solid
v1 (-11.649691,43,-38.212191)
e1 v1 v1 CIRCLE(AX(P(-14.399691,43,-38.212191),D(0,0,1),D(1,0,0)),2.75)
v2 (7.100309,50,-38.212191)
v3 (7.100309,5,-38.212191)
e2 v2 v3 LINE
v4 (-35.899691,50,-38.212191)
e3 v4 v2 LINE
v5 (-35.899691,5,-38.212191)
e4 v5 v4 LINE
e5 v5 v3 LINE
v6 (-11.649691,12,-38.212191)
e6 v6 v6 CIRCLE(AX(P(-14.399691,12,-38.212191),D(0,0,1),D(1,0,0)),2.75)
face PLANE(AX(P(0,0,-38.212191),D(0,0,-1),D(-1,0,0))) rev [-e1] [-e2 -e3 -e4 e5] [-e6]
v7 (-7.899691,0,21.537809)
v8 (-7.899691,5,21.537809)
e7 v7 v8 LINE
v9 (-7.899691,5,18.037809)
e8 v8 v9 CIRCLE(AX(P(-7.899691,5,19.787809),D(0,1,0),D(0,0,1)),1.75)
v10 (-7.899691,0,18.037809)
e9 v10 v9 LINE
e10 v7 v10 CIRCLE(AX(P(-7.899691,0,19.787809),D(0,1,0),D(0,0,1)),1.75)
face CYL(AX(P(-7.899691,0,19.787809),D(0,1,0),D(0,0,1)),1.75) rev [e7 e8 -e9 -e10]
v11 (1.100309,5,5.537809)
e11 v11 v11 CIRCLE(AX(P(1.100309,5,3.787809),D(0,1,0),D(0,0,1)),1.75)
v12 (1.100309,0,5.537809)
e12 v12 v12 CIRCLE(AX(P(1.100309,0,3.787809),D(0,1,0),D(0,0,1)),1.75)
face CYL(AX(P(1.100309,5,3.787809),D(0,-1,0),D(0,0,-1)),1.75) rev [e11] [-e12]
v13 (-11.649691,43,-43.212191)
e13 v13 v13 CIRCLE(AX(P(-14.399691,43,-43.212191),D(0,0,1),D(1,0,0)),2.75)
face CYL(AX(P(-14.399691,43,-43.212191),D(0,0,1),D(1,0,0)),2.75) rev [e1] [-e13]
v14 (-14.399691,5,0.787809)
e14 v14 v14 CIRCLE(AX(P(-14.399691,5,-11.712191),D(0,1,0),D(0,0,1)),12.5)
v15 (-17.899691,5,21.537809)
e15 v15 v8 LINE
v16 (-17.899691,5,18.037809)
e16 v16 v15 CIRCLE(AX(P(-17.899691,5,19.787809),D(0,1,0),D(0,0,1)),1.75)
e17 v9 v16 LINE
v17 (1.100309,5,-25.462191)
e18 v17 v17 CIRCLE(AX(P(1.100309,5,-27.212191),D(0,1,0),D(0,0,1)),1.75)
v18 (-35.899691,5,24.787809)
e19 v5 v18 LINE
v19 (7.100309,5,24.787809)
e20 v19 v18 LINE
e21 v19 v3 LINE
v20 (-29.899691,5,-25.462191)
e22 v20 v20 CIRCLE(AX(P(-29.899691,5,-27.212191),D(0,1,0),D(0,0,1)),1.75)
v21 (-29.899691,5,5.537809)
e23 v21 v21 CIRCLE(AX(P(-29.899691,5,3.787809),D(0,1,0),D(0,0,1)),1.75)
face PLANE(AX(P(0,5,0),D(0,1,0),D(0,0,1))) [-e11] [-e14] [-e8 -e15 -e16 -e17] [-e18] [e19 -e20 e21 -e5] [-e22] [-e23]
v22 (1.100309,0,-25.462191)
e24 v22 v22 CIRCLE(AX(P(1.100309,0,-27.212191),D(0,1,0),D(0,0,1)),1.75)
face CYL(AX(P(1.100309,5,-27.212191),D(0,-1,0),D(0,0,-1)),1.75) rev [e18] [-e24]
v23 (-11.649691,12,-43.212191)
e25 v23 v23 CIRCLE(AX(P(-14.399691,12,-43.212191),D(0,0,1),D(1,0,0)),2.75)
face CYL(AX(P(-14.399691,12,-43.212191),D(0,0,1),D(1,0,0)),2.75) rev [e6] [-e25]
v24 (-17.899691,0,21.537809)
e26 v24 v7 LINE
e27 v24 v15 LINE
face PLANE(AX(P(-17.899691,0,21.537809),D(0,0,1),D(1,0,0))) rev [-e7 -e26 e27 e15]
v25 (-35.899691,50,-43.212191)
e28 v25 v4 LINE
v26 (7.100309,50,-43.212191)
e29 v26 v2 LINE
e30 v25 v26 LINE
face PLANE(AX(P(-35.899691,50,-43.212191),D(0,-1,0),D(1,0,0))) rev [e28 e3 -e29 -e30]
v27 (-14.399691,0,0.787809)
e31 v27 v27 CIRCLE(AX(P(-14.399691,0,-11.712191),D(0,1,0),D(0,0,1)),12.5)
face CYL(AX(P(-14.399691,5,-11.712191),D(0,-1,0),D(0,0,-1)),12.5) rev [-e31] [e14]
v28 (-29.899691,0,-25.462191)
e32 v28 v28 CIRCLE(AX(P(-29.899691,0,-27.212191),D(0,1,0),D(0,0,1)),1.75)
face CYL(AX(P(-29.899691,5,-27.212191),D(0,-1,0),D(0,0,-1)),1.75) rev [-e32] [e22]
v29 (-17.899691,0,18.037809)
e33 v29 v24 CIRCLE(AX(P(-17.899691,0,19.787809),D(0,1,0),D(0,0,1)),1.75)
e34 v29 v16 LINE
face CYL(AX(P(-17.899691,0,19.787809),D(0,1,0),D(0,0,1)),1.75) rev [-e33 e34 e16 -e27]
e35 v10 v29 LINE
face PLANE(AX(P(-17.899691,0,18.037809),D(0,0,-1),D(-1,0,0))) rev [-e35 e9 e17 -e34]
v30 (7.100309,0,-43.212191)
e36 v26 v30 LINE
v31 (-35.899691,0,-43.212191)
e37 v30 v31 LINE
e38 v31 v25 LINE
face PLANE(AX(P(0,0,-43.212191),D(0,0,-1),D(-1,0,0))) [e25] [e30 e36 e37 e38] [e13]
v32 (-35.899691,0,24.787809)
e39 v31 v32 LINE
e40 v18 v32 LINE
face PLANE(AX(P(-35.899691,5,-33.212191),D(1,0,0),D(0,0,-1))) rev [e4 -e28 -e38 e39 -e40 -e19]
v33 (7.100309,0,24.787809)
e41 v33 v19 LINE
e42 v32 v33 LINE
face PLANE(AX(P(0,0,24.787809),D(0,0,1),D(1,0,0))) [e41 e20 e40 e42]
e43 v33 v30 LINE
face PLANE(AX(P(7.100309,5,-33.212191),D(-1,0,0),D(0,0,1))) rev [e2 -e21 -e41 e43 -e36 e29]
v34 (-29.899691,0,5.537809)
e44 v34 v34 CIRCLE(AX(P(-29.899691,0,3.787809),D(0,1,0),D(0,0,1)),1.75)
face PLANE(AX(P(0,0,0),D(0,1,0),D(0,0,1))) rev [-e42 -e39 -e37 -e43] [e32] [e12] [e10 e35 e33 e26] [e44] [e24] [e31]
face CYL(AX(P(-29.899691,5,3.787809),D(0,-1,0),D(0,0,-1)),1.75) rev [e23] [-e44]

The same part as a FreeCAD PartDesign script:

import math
import FreeCAD as App
import Part
import Sketcher

V = App.Vector
Q = App.Units.Quantity

doc = App.newDocument("Part")
body = doc.addObject("PartDesign::Body", "Body")

sketch1 = body.newObject("Sketcher::SketchObject", "Sketch")
sketch1.AttachmentSupport = (doc.getObject("XZ_Plane"), [""])
sketch1.MapMode = "FlatFace"
sketch1.addGeometry([
    Part.LineSegment(V(-35.899691, -33.212191, 0), V(-35.899691, 9.787809, 0)),
    Part.LineSegment(V(-35.899691, 9.787809, 0), V(7.100309, 9.787809, 0)),
    Part.LineSegment(V(7.100309, 9.787809, 0), V(7.100309, -33.212191, 0)),
    Part.LineSegment(V(7.100309, -33.212191, 0), V(-35.899691, -33.212191, 0)),
    Part.Circle(V(-29.899691, 3.787809, 0), V(0, 0, 1), 1.75),
    Part.Circle(V(1.100309, 3.787809, 0), V(0, 0, 1), 1.75),
    Part.Circle(V(-29.899691, -27.212191, 0), V(0, 0, 1), 1.75),
    Part.Circle(V(-14.399691, -11.712191, 0), V(0, 0, 1), 12.5),
    Part.Circle(V(1.100309, -27.212191, 0), V(0, 0, 1), 1.75),
], False)
sketch1.addConstraint([
    Sketcher.Constraint("Coincident", 0, 2, 1, 1),
    Sketcher.Constraint("Coincident", 1, 2, 2, 1),
    Sketcher.Constraint("Coincident", 2, 2, 3, 1),
    Sketcher.Constraint("Coincident", 3, 2, 0, 1),
    Sketcher.Constraint("Vertical", 0),
    Sketcher.Constraint("Horizontal", 1),
    Sketcher.Constraint("Vertical", 2),
    Sketcher.Constraint("Horizontal", 3),
    Sketcher.Constraint("Equal", 4, 5),
    Sketcher.Constraint("Equal", 5, 6),
    Sketcher.Constraint("Equal", 6, 8),
    Sketcher.Constraint("Horizontal", 4, 3, 5, 3),
    Sketcher.Constraint("Horizontal", 6, 3, 8, 3),
    Sketcher.Constraint("Vertical", 4, 3, 6, 3),
    Sketcher.Constraint("Vertical", 5, 3, 8, 3),
    Sketcher.Constraint("Equal", 3, 0),
    Sketcher.Constraint("Diameter", 7, Q("25 mm")),
    Sketcher.Constraint("Diameter", 4, Q("3.5 mm")),
    Sketcher.Constraint("DistanceX", 1, 1, 1, 2, Q("43 mm")),
    Sketcher.Constraint("DistanceX", 4, 3, 5, 3, Q("31 mm")),
    Sketcher.Constraint("DistanceY", 6, 3, 4, 3, Q("31 mm")),
    Sketcher.Constraint("DistanceX", 0, 2, 4, 3, Q("6 mm")),
    Sketcher.Constraint("DistanceY", 4, 3, 0, 2, Q("6 mm")),
    Sketcher.Constraint("DistanceX", 6, 3, 7, 3, Q("15.5 mm")),
    Sketcher.Constraint("DistanceY", 6, 3, 7, 3, Q("15.5 mm")),
    Sketcher.Constraint("DistanceX", 4, 3, -1, 1, Q("29.899691 mm")),
    Sketcher.Constraint("DistanceY", -1, 1, 4, 3, Q("3.787809 mm")),
])
pad1 = body.newObject("PartDesign::Pad", "Pad")
pad1.Profile = sketch1
pad1.Length = 5
pad1.Reversed = True

sketch2 = body.newObject("Sketcher::SketchObject", "Sketch001")
sketch2.AttachmentSupport = (doc.getObject("XY_Plane"), [""])
sketch2.MapMode = "FlatFace"
sketch2.AttachmentOffset = App.Placement(V(0, 0, -33.212191), App.Rotation())
sketch2.addGeometry([
    Part.LineSegment(V(7.100309, 5, 0), V(7.100309, 0, 0)),
    Part.LineSegment(V(7.100309, 0, 0), V(-35.899691, 0, 0)),
    Part.LineSegment(V(-35.899691, 0, 0), V(-35.899691, 5, 0)),
    Part.LineSegment(V(-35.899691, 5, 0), V(7.100309, 5, 0)),
], False)
sketch2.addConstraint([
    Sketcher.Constraint("Coincident", 0, 2, 1, 1),
    Sketcher.Constraint("Coincident", 1, 2, 2, 1),
    Sketcher.Constraint("Coincident", 2, 2, 3, 1),
    Sketcher.Constraint("Coincident", 3, 2, 0, 1),
    Sketcher.Constraint("Vertical", 0),
    Sketcher.Constraint("Horizontal", 1),
    Sketcher.Constraint("Vertical", 2),
    Sketcher.Constraint("Horizontal", 3),
    Sketcher.Constraint("PointOnObject", 0, 2, -1),
    Sketcher.Constraint("DistanceX", 1, 2, 1, 1, Q("43 mm")),
    Sketcher.Constraint("DistanceY", 0, 2, 0, 1, Q("5 mm")),
    Sketcher.Constraint("DistanceX", -1, 1, 0, 2, Q("7.100309 mm")),
])
pad2 = body.newObject("PartDesign::Pad", "Pad001")
pad2.Profile = sketch2
pad2.Length = 5
pad2.Reversed = True

sketch3 = body.newObject("Sketcher::SketchObject", "Sketch002")
sketch3.AttachmentSupport = (doc.getObject("XY_Plane"), [""])
sketch3.MapMode = "FlatFace"
sketch3.AttachmentOffset = App.Placement(V(0, 0, -38.212191), App.Rotation())
sketch3.addGeometry([
    Part.LineSegment(V(7.100309, 50, 0), V(7.100309, 0, 0)),
    Part.LineSegment(V(7.100309, 0, 0), V(-35.899691, 0, 0)),
    Part.LineSegment(V(-35.899691, 0, 0), V(-35.899691, 50, 0)),
    Part.LineSegment(V(-35.899691, 50, 0), V(7.100309, 50, 0)),
], False)
sketch3.addConstraint([
    Sketcher.Constraint("Coincident", 0, 2, 1, 1),
    Sketcher.Constraint("Coincident", 1, 2, 2, 1),
    Sketcher.Constraint("Coincident", 2, 2, 3, 1),
    Sketcher.Constraint("Coincident", 3, 2, 0, 1),
    Sketcher.Constraint("Vertical", 0),
    Sketcher.Constraint("Horizontal", 1),
    Sketcher.Constraint("Vertical", 2),
    Sketcher.Constraint("Horizontal", 3),
    Sketcher.Constraint("PointOnObject", 0, 2, -1),
    Sketcher.Constraint("DistanceX", 1, 2, 1, 1, Q("43 mm")),
    Sketcher.Constraint("DistanceY", 0, 2, 0, 1, Q("50 mm")),
    Sketcher.Constraint("DistanceX", -1, 1, 0, 2, Q("7.100309 mm")),
])
pad3 = body.newObject("PartDesign::Pad", "Pad002")
pad3.Profile = sketch3
pad3.Length = 5
pad3.Reversed = True

sketch4 = body.newObject("Sketcher::SketchObject", "Sketch003")
sketch4.AttachmentSupport = (doc.getObject("XY_Plane"), [""])
sketch4.MapMode = "FlatFace"
sketch4.AttachmentOffset = App.Placement(V(0, 0, -38.212191), App.Rotation())
sketch4.addGeometry([
    Part.Circle(V(-14.399691, 43, 0), V(0, 0, 1), 2.75),
    Part.Circle(V(-14.399691, 12, 0), V(0, 0, 1), 2.75),
], False)
sketch4.addConstraint([
    Sketcher.Constraint("Equal", 0, 1),
    Sketcher.Constraint("Vertical", 0, 3, 1, 3),
    Sketcher.Constraint("Diameter", 0, Q("5.5 mm")),
    Sketcher.Constraint("DistanceY", -1, 1, 0, 3, Q("43 mm")),
    Sketcher.Constraint("DistanceY", -1, 1, 1, 3, Q("12 mm")),
    Sketcher.Constraint("DistanceX", 0, 3, -1, 1, Q("14.399691 mm")),
])
pocket1 = body.newObject("PartDesign::Pocket", "Pocket")
pocket1.Profile = sketch4
pocket1.Type = "ThroughAll"

sketch5 = body.newObject("Sketcher::SketchObject", "Sketch004")
sketch5.AttachmentSupport = (doc.getObject("XY_Plane"), [""])
sketch5.MapMode = "FlatFace"
sketch5.AttachmentOffset = App.Placement(V(0, 0, 9.787809), App.Rotation())
sketch5.addGeometry([
    Part.LineSegment(V(-35.899691, 5, 0), V(-35.899691, 0, 0)),
    Part.LineSegment(V(-35.899691, 0, 0), V(7.100309, 0, 0)),
    Part.LineSegment(V(7.100309, 0, 0), V(7.100309, 5, 0)),
    Part.LineSegment(V(7.100309, 5, 0), V(-35.899691, 5, 0)),
], False)
sketch5.addConstraint([
    Sketcher.Constraint("Coincident", 0, 2, 1, 1),
    Sketcher.Constraint("Coincident", 1, 2, 2, 1),
    Sketcher.Constraint("Coincident", 2, 2, 3, 1),
    Sketcher.Constraint("Coincident", 3, 2, 0, 1),
    Sketcher.Constraint("Vertical", 0),
    Sketcher.Constraint("Horizontal", 1),
    Sketcher.Constraint("Vertical", 2),
    Sketcher.Constraint("Horizontal", 3),
    Sketcher.Constraint("PointOnObject", 0, 2, -1),
    Sketcher.Constraint("DistanceX", 1, 1, 1, 2, Q("43 mm")),
    Sketcher.Constraint("DistanceY", 0, 2, 0, 1, Q("5 mm")),
    Sketcher.Constraint("DistanceX", 0, 2, -1, 1, Q("35.899691 mm")),
])
pad4 = body.newObject("PartDesign::Pad", "Pad003")
pad4.Profile = sketch5
pad4.Length = 15

sketch6 = body.newObject("Sketcher::SketchObject", "Sketch005")
sketch6.AttachmentSupport = (doc.getObject("XZ_Plane"), [""])
sketch6.MapMode = "FlatFace"
sketch6.AttachmentOffset = App.Placement(V(0, 0, -5), App.Rotation())
sketch6.addGeometry([
    Part.LineSegment(V(-7.899691, 18.037809, 0), V(-17.899691, 18.037809, 0)),
    Part.ArcOfCircle(Part.Circle(V(-17.899691, 19.787809, 0), V(0, 0, 1), 1.75), math.radians(90), math.radians(270)),
    Part.LineSegment(V(-17.899691, 21.537809, 0), V(-7.899691, 21.537809, 0)),
    Part.ArcOfCircle(Part.Circle(V(-7.899691, 19.787809, 0), V(0, 0, 1), 1.75), math.radians(-90), math.radians(90)),
], False)
sketch6.addConstraint([
    Sketcher.Constraint("Tangent", 0, 2, 1, 2),
    Sketcher.Constraint("Tangent", 1, 1, 2, 1),
    Sketcher.Constraint("Tangent", 2, 2, 3, 2),
    Sketcher.Constraint("Tangent", 3, 1, 0, 1),
    Sketcher.Constraint("Horizontal", 0),
    Sketcher.Constraint("Horizontal", 2),
    Sketcher.Constraint("DistanceX", 0, 2, 0, 1, Q("10 mm")),
    Sketcher.Constraint("Radius", 1, Q("1.75 mm")),
    Sketcher.Constraint("DistanceX", 1, 3, -1, 1, Q("17.899691 mm")),
    Sketcher.Constraint("DistanceY", -1, 1, 1, 3, Q("19.787809 mm")),
])
pocket2 = body.newObject("PartDesign::Pocket", "Pocket001")
pocket2.Profile = sketch6
pocket2.Type = "ThroughAll"
pocket2.Reversed = True

doc.recompute()
